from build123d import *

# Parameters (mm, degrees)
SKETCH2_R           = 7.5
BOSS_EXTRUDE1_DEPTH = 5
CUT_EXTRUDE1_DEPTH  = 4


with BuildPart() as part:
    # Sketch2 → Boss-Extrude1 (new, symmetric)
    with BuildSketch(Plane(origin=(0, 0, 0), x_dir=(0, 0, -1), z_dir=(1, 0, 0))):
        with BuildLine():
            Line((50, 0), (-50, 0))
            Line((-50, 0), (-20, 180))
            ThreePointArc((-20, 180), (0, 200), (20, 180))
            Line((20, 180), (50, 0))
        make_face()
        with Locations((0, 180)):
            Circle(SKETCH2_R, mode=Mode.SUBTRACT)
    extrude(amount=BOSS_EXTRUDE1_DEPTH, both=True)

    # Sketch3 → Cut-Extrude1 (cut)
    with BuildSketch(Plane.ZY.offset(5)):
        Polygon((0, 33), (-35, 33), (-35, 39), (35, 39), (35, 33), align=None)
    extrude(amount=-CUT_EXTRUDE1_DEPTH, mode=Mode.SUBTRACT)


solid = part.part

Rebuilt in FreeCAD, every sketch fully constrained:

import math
import FreeCAD as App
import Part
import Sketcher


def add_polygon(sketch, points):
    """Adds a closed chain of lines whose ends are joined by coincident constraints."""
    first, n = sketch.GeometryCount, len(points)
    for a, b in zip(points, points[1:] + points[:1]):
        sketch.addGeometry(Part.LineSegment(App.Vector(*a, 0), App.Vector(*b, 0)), False)
    for i in range(n):
        sketch.addConstraint(Sketcher.Constraint("Coincident", first + i, 2, first + (i + 1) % n, 1))

doc = App.newDocument("Part")
params = doc.addObject("Spreadsheet::Sheet", "Params")
for row, (alias, value) in enumerate([
    ("sketch1_diameter", "15 mm"),
    ("sketch1_radius", "20 mm"),
    ("sketch1_height", "100 mm"),
    ("pad1_length", "10 mm"),
    ("sketch2_width", "6 mm"),
    ("sketch2_height", "70 mm"),
    ("pocket1_length", "4 mm"),
], start=1):
    params.set(f"A{row}", alias)
    params.set(f"B{row}", "=" + value)
    params.setAlias(f"B{row}", alias)

body = doc.addObject("PartDesign::Body", "Body")

# Sketch on YZ plane
sketch1 = body.newObject("Sketcher::SketchObject", "Sketch")
sketch1.AttachmentSupport = (doc.getObject("YZ_Plane"), [""])
sketch1.MapMode = "FlatFace"
sketch1.addGeometry([
    Part.LineSegment(App.Vector(0, 50, 0), App.Vector(0, -50, 0)),  # 0
    Part.LineSegment(App.Vector(0, -50, 0), App.Vector(180, -20, 0)),  # 1
    Part.ArcOfCircle(Part.Circle(App.Vector(180, 0, 0), App.Vector(0, 0, 1), 20), math.radians(-90), math.radians(90)),  # 2
    Part.LineSegment(App.Vector(180, 20, 0), App.Vector(0, 50, 0)),  # 3
    Part.Circle(App.Vector(180, 0, 0), App.Vector(0, 0, 1), 8),  # 4
], False)
sketch1.addConstraint([
    Sketcher.Constraint("Coincident", 0, 2, 1, 1),
    Sketcher.Constraint("Coincident", 1, 2, 2, 1),
    Sketcher.Constraint("Coincident", 2, 2, 3, 1),
    Sketcher.Constraint("Coincident", 3, 2, 0, 1),
    Sketcher.Constraint("Vertical", 0),
    Sketcher.Constraint("Coincident", 4, 3, 2, 3),
    Sketcher.Constraint("Symmetric", 0, 2, 3, 2, -1, 1),
    Sketcher.Constraint("Symmetric", 1, 2, 2, 2, -1),
    Sketcher.Constraint("Vertical", 4, 3, 1, 2),
    Sketcher.Constraint("Diameter", 4, 15.0),
    Sketcher.Constraint("Radius", 2, 20.0),
    Sketcher.Constraint("DistanceY", 0, 2, 0, 1, 100.0),
    Sketcher.Constraint("DistanceX", -1, 1, 2, 3, 180.0),
])
sketch1.setExpression("Constraints[9]", "Params.sketch1_diameter")
sketch1.setExpression("Constraints[10]", "Params.sketch1_radius")
sketch1.setExpression("Constraints[11]", "Params.sketch1_height")
pad1 = body.newObject("PartDesign::Pad", "Pad")
pad1.Profile = sketch1
pad1.setExpression("Length", "Params.pad1_length")
pad1.Midplane = True

# Sketch on YZ plane
sketch2 = body.newObject("Sketcher::SketchObject", "Sketch001")
sketch2.AttachmentSupport = (doc.getObject("YZ_Plane"), [""])
sketch2.MapMode = "FlatFace"
sketch2.AttachmentOffset = App.Placement(App.Vector(0, 0, -5), App.Rotation())
add_polygon(sketch2, [(33, -35), (33, 35), (39, 35), (39, -35)])  # lines 0-3
sketch2.addConstraint([
    Sketcher.Constraint("Vertical", 0),
    Sketcher.Constraint("Horizontal", 1),
    Sketcher.Constraint("Vertical", 2),
    Sketcher.Constraint("Horizontal", 3),
    Sketcher.Constraint("DistanceX", 1, 1, 1, 2, 6.0),
    Sketcher.Constraint("DistanceY", 0, 1, 0, 2, 70.0),
    Sketcher.Constraint("DistanceX", -1, 1, 0, 2, 33.0),
    Sketcher.Constraint("DistanceY", -1, 1, 0, 2, 35.0),
])
sketch2.setExpression("Constraints[8]", "Params.sketch2_width")
sketch2.setExpression("Constraints[9]", "Params.sketch2_height")
pocket1 = body.newObject("PartDesign::Pocket", "Pocket")
pocket1.Profile = sketch2
pocket1.setExpression("Length", "Params.pocket1_length")
pocket1.Reversed = True

doc.recompute()
